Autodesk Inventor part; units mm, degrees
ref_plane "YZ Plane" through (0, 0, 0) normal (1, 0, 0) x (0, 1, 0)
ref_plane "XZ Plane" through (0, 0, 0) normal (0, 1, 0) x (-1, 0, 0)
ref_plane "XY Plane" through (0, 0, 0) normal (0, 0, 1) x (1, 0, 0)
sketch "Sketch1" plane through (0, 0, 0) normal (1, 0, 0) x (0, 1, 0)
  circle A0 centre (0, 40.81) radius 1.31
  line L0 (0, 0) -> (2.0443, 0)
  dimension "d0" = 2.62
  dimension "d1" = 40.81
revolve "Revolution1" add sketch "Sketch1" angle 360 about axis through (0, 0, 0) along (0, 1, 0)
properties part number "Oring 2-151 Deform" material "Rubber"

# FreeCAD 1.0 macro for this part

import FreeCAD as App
import Part
import Sketcher

doc = App.newDocument("Part")
body = doc.addObject("PartDesign::Body", "Body")

# Sketch on YZ plane
sketch1 = doc.addObject("Sketcher::SketchObject", "Sketch")
body.addObject(sketch1)
sketch1.AttachmentSupport = (doc.YZ_Plane, [""])
sketch1.MapMode = "FlatFace"
sketch1.addGeometry(Part.Circle(App.Vector(0, 40.81, 0), App.Vector(0, 0, 1), 1.31), False)
sketch1.addConstraint([
    Sketcher.Constraint("PointOnObject", 0, 3, -2),
    Sketcher.Constraint("Diameter", 0, 2.62),
    Sketcher.Constraint("DistanceY", -1, 1, 0, 3, 40.81),
])
revolution = doc.addObject("PartDesign::Revolution", "Revolution")
body.addObject(revolution)
revolution.Profile = sketch1
revolution.ReferenceAxis = (sketch1, ["H_Axis"])
revolution.Angle = 360

doc.recompute()
